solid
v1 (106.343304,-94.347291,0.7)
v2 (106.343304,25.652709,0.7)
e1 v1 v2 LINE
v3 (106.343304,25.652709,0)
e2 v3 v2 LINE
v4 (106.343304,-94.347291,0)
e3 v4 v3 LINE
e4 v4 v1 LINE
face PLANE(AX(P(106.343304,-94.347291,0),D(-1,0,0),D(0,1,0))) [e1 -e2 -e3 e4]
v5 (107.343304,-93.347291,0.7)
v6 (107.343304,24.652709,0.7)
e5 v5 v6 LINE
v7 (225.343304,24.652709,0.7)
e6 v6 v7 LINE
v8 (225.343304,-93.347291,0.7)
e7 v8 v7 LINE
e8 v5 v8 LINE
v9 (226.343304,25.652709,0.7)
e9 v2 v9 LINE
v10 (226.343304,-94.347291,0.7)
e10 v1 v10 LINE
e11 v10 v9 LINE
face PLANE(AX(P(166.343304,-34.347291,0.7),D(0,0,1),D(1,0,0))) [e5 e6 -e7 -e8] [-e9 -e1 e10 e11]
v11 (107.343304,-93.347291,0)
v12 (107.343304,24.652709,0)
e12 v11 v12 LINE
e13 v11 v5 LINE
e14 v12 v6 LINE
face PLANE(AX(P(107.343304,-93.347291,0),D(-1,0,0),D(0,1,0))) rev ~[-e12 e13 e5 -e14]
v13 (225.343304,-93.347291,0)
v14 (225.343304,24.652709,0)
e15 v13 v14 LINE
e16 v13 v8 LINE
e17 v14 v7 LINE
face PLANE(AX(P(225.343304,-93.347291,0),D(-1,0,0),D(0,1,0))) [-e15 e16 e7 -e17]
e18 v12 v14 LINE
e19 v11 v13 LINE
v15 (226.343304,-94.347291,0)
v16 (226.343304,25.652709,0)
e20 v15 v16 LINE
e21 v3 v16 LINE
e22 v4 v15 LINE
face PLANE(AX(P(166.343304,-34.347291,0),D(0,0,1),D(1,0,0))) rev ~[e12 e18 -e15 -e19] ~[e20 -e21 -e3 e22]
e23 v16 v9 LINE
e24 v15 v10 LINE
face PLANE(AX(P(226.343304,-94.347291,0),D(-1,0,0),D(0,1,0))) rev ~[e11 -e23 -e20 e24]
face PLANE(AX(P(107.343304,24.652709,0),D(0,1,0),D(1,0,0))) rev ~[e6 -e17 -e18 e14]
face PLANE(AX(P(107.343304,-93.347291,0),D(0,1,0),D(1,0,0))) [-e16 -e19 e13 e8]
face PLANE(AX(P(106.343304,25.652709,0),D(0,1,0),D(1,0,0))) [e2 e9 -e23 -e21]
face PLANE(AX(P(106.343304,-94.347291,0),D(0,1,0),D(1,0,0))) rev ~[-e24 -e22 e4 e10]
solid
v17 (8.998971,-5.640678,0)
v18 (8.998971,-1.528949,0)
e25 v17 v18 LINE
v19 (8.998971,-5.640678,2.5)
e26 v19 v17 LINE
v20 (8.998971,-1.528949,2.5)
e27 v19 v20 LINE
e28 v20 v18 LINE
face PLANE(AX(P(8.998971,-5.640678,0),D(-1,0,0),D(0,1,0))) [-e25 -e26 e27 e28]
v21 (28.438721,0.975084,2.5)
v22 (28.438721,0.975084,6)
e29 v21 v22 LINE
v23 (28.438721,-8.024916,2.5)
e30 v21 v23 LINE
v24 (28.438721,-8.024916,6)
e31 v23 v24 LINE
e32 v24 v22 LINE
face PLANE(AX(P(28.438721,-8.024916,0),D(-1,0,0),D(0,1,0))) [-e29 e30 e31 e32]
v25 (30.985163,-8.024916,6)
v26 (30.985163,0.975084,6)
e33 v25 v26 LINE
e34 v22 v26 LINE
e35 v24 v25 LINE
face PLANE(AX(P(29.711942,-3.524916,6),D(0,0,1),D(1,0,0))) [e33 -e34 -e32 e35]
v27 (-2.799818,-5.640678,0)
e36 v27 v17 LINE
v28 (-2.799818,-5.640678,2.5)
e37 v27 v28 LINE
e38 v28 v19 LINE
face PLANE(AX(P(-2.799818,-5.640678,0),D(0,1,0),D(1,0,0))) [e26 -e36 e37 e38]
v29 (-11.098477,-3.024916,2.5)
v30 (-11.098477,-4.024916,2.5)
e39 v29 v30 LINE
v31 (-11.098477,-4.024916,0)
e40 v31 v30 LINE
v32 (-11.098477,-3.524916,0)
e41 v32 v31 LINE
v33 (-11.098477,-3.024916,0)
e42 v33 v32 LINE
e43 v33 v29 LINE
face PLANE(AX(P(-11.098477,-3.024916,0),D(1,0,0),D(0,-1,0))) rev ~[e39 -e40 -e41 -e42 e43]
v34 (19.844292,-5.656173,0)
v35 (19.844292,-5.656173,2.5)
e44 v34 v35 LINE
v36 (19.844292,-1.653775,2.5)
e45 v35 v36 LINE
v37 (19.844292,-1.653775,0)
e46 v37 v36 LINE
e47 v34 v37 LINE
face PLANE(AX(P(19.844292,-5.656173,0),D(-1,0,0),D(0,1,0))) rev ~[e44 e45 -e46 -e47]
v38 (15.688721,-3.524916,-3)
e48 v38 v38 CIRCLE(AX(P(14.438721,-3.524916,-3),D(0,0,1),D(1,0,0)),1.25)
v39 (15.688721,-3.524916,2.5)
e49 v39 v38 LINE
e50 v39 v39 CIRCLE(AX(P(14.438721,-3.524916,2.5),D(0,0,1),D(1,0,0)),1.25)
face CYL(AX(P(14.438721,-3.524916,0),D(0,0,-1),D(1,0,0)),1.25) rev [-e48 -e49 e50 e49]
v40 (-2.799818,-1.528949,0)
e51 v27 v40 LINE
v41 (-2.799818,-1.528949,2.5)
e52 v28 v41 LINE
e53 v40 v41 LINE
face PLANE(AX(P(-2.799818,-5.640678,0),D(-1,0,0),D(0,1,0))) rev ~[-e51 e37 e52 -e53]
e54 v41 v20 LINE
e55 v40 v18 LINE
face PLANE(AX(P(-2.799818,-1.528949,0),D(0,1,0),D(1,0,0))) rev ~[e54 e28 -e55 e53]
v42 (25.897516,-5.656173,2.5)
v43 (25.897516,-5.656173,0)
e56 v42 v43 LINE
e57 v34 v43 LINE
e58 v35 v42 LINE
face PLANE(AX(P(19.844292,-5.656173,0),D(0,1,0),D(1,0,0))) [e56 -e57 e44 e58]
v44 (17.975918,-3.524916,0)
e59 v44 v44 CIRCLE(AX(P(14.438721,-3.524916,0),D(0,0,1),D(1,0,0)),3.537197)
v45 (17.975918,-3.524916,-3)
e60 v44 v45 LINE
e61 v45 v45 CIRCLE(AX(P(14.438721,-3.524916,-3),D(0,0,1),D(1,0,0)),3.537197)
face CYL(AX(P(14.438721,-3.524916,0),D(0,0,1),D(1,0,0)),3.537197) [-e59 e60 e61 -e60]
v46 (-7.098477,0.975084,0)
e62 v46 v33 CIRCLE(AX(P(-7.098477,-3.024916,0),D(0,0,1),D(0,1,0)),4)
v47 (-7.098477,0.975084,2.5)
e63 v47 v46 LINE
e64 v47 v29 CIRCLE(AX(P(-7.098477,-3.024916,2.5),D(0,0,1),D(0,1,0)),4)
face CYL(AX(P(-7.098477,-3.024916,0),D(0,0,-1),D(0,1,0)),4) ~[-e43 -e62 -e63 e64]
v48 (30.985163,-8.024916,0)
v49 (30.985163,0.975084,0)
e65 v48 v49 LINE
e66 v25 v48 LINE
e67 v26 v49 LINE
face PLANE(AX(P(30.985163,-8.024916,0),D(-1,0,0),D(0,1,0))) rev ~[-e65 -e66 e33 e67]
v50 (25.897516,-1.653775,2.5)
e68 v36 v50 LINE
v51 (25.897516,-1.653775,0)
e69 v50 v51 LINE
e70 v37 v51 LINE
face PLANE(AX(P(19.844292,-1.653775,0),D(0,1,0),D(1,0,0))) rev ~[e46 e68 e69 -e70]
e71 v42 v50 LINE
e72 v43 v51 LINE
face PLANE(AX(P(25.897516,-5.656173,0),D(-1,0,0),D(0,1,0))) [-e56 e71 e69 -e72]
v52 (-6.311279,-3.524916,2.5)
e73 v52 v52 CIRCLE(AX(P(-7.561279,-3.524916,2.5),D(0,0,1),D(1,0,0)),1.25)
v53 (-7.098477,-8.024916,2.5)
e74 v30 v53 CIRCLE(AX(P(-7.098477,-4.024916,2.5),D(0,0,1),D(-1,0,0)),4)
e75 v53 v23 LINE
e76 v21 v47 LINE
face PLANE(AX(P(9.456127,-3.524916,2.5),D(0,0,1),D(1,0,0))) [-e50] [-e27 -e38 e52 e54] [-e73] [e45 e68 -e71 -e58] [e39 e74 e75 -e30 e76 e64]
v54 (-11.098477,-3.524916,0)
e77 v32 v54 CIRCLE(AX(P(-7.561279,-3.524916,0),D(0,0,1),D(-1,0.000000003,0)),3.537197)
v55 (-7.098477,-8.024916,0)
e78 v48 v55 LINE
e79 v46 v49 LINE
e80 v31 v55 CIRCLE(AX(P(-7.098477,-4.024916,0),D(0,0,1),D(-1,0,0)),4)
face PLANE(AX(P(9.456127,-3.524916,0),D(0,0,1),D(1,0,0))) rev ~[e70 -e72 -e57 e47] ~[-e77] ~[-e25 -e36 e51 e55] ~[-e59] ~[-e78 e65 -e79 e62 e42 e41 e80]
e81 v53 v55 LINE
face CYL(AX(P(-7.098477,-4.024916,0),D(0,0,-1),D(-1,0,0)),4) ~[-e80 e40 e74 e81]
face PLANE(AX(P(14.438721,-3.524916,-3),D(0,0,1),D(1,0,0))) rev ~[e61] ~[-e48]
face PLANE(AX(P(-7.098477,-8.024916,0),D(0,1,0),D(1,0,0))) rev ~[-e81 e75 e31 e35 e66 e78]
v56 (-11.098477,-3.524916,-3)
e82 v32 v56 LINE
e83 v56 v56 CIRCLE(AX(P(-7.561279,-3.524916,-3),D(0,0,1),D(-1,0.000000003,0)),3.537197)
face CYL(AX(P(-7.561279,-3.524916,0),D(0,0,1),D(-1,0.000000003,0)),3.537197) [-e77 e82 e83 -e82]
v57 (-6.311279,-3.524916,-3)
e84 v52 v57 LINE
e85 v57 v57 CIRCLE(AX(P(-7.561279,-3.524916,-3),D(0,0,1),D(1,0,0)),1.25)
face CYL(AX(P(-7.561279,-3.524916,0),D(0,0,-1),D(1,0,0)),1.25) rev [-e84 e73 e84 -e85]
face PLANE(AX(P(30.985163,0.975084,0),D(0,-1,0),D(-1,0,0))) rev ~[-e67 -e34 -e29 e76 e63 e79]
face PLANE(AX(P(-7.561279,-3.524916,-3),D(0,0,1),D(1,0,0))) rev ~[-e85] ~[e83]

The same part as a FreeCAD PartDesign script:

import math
import FreeCAD as App
import Part
import Sketcher
from FreeCAD import Vector

doc = App.newDocument("Part")
body = doc.addObject("PartDesign::Body", "Body")

# Sketch on XY plane
sketch1 = doc.addObject("Sketcher::SketchObject", "Sketch")
body.addObject(sketch1)
sketch1.AttachmentSupport = (doc.XY_Plane, [""])
sketch1.MapMode = "FlatFace"
sketch1.addGeometry([
    Part.LineSegment(Vector(-11.1, -3, 0), Vector(-11.1, -4, 0)),  # 0
    Part.ArcOfCircle(Part.Circle(Vector(-7.1, -4, 0), Vector(0, 0, 1), 4), math.radians(180), math.radians(270)),  # 1
    Part.LineSegment(Vector(-7.1, -8, 0), Vector(31, -8, 0)),  # 2
    Part.LineSegment(Vector(31, -8, 0), Vector(31, 1, 0)),  # 3
    Part.LineSegment(Vector(31, 1, 0), Vector(-7.1, 1, 0)),  # 4
    Part.ArcOfCircle(Part.Circle(Vector(-7.1, -3, 0), Vector(0, 0, 1), 4), math.radians(90), math.radians(180)),  # 5
    Part.LineSegment(Vector(25.9, -5.7, 0), Vector(19.8, -5.7, 0)),  # 6
    Part.LineSegment(Vector(19.8, -5.7, 0), Vector(19.8, -1.7, 0)),  # 7
    Part.LineSegment(Vector(19.8, -1.7, 0), Vector(25.9, -1.7, 0)),  # 8
    Part.LineSegment(Vector(25.9, -1.7, 0), Vector(25.9, -5.7, 0)),  # 9
    Part.Circle(Vector(-7.6, -3.5, 0), Vector(0, 0, 1), 1.2),  # 10
    Part.LineSegment(Vector(9, -5.6, 0), Vector(-2.8, -5.6, 0)),  # 11
    Part.LineSegment(Vector(-2.8, -5.6, 0), Vector(-2.8, -1.5, 0)),  # 12
    Part.LineSegment(Vector(-2.8, -1.5, 0), Vector(9, -1.5, 0)),  # 13
    Part.LineSegment(Vector(9, -1.5, 0), Vector(9, -5.6, 0)),  # 14
    Part.Circle(Vector(14.4, -3.5, 0), Vector(0, 0, 1), 1.2),  # 15
], False)
sketch1.addConstraint([
    Sketcher.Constraint("Tangent", 0, 2, 1, 1),
    Sketcher.Constraint("Tangent", 1, 2, 2, 1),
    Sketcher.Constraint("Coincident", 2, 2, 3, 1),
    Sketcher.Constraint("Coincident", 3, 2, 4, 1),
    Sketcher.Constraint("Tangent", 4, 2, 5, 1),
    Sketcher.Constraint("Tangent", 5, 2, 0, 1),
    Sketcher.Constraint("Coincident", 6, 2, 7, 1),
    Sketcher.Constraint("Coincident", 7, 2, 8, 1),
    Sketcher.Constraint("Coincident", 8, 2, 9, 1),
    Sketcher.Constraint("Coincident", 9, 2, 6, 1),
    Sketcher.Constraint("Coincident", 11, 2, 12, 1),
    Sketcher.Constraint("Coincident", 12, 2, 13, 1),
    Sketcher.Constraint("Coincident", 13, 2, 14, 1),
    Sketcher.Constraint("Coincident", 14, 2, 11, 1),
    Sketcher.Constraint("Vertical", 0),
    Sketcher.Constraint("Horizontal", 2),
    Sketcher.Constraint("Vertical", 3),
    Sketcher.Constraint("Horizontal", 4),
    Sketcher.Constraint("Horizontal", 6),
    Sketcher.Constraint("Vertical", 7),
    Sketcher.Constraint("Horizontal", 8),
    Sketcher.Constraint("Vertical", 9),
    Sketcher.Constraint("Horizontal", 11),
    Sketcher.Constraint("Vertical", 12),
    Sketcher.Constraint("Horizontal", 13),
    Sketcher.Constraint("Vertical", 14),
    Sketcher.Constraint("Equal", 1, 5),
    Sketcher.Constraint("Equal", 10, 15),
    Sketcher.Constraint("Horizontal", 10, 3, 15, 3),
    Sketcher.Constraint("Radius", 1, 4.0),
    Sketcher.Constraint("Diameter", 10, 2.5),
    Sketcher.Constraint("DistanceY", 0, 2, 0, 1, 1.0),
    Sketcher.Constraint("DistanceX", 10, 3, 15, 3, 22.0),
    Sketcher.Constraint("DistanceY", 1, 3, 10, 3, 0.5),
    Sketcher.Constraint("DistanceX", 2, 1, 2, 2, 38.083639),
    Sketcher.Constraint("DistanceX", 11, 2, 11, 1, 11.798789),
    Sketcher.Constraint("DistanceY", 12, 1, 12, 2, 4.111729),
    Sketcher.Constraint("DistanceX", 6, 2, 6, 1, 6.053224),
    Sketcher.Constraint("DistanceY", 7, 1, 7, 2, 4.002397),
    Sketcher.Constraint("DistanceX", 10, 3, -1, 1, 7.561279),
    Sketcher.Constraint("DistanceX", -1, 1, 6, 2, 19.844292),
    Sketcher.Constraint("DistanceX", 11, 2, -1, 1, 2.799818),
    Sketcher.Constraint("DistanceY", 12, 2, -1, 1, 1.528949),
    Sketcher.Constraint("DistanceX", 15, 3, 2, 2, 16.546442),
    Sketcher.Constraint("DistanceY", 15, 3, 7, 2, 1.871141),
    Sketcher.Constraint("DistanceY", 11, 2, 1, 3, 1.615762),
])
pad1 = doc.addObject("PartDesign::Pad", "Pad")
body.addObject(pad1)
pad1.Profile = sketch1
pad1.Length = 2.5

# Sketch on XY plane
sketch2 = doc.addObject("Sketcher::SketchObject", "Sketch001")
body.addObject(sketch2)
sketch2.AttachmentSupport = (doc.XY_Plane, [""])
sketch2.MapMode = "FlatFace"
sketch2.addGeometry([
    Part.Circle(Vector(-7.6, -3.5, 0), Vector(0, 0, 1), 3.5),
    Part.Circle(Vector(-7.6, -3.5, 0), Vector(0, 0, 1), 1.2),
    Part.Circle(Vector(14.4, -3.5, 0), Vector(0, 0, 1), 3.5),
    Part.Circle(Vector(14.4, -3.5, 0), Vector(0, 0, 1), 1.2),
], False)
sketch2.addConstraint([
    Sketcher.Constraint("Coincident", 1, 3, 0, 3),
    Sketcher.Constraint("Coincident", 3, 3, 2, 3),
    Sketcher.Constraint("Equal", 0, 2),
    Sketcher.Constraint("Equal", 1, 3),
    Sketcher.Constraint("Horizontal", 1, 3, 2, 3),
    Sketcher.Constraint("Diameter", 1, 2.5),
    Sketcher.Constraint("DistanceX", 0, 3, 2, 3, 22.0),
    Sketcher.Constraint("Diameter", 0, 7.074395),
    Sketcher.Constraint("DistanceX", 0, 3, -1, 1, 7.561279),
    Sketcher.Constraint("DistanceY", 0, 3, -1, 1, 3.524916),
])
pad2 = doc.addObject("PartDesign::Pad", "Pad001")
body.addObject(pad2)
pad2.Profile = sketch2
pad2.Length = 3
pad2.Reversed = True

# Sketch on XY plane
sketch3 = doc.addObject("Sketcher::SketchObject", "Sketch002")
body.addObject(sketch3)
sketch3.AttachmentSupport = (doc.XY_Plane, [""])
sketch3.MapMode = "FlatFace"
sketch3.addGeometry([
    Part.LineSegment(Vector(28.4, 1, 0), Vector(28.4, -8, 0)),
    Part.LineSegment(Vector(28.4, -8, 0), Vector(31, -8, 0)),
    Part.LineSegment(Vector(31, -8, 0), Vector(31, 1, 0)),
    Part.LineSegment(Vector(31, 1, 0), Vector(28.4, 1, 0)),
], False)
sketch3.addConstraint([
    Sketcher.Constraint("Coincident", 0, 2, 1, 1),
    Sketcher.Constraint("Coincident", 1, 2, 2, 1),
    Sketcher.Constraint("Coincident", 2, 2, 3, 1),
    Sketcher.Constraint("Coincident", 3, 2, 0, 1),
    Sketcher.Constraint("Vertical", 0),
    Sketcher.Constraint("Horizontal", 1),
    Sketcher.Constraint("Vertical", 2),
    Sketcher.Constraint("Horizontal", 3),
    Sketcher.Constraint("DistanceY", 0, 2, 0, 1, 9.0),
    Sketcher.Constraint("DistanceX", 1, 1, 1, 2, 2.546442),
    Sketcher.Constraint("DistanceX", -1, 1, 0, 2, 28.438721),
    Sketcher.Constraint("DistanceY", 0, 2, -1, 1, 8.024916),
])
pad3 = doc.addObject("PartDesign::Pad", "Pad002")
body.addObject(pad3)
pad3.Profile = sketch3
pad3.Length = 6

# Sketch on XY plane
sketch4 = doc.addObject("Sketcher::SketchObject", "Sketch003")
body.addObject(sketch4)
sketch4.AttachmentSupport = (doc.XY_Plane, [""])
sketch4.MapMode = "FlatFace"
sketch4.addGeometry([
    Part.ArcOfCircle(Part.Circle(Vector(-7.1, -3, 0), Vector(0, 0, 1), 4), math.radians(90), math.radians(180)),  # 0
    Part.LineSegment(Vector(-11.1, -3, 0), Vector(-11.1, -4, 0)),  # 1
    Part.ArcOfCircle(Part.Circle(Vector(-7.1, -4, 0), Vector(0, 0, 1), 4), math.radians(180), math.radians(270)),  # 2
    Part.LineSegment(Vector(-7.1, -8, 0), Vector(31, -8, 0)),  # 3
    Part.LineSegment(Vector(31, -8, 0), Vector(31, 1, 0)),  # 4
    Part.LineSegment(Vector(31, 1, 0), Vector(-7.1, 1, 0)),  # 5
    Part.LineSegment(Vector(9, -5.6, 0), Vector(-2.8, -5.6, 0)),  # 6
    Part.LineSegment(Vector(-2.8, -5.6, 0), Vector(-2.8, -1.5, 0)),  # 7
    Part.LineSegment(Vector(-2.8, -1.5, 0), Vector(9, -1.5, 0)),  # 8
    Part.LineSegment(Vector(9, -1.5, 0), Vector(9, -5.6, 0)),  # 9
    Part.LineSegment(Vector(25.9, -5.7, 0), Vector(19.8, -5.7, 0)),  # 10
    Part.LineSegment(Vector(19.8, -5.7, 0), Vector(19.8, -1.7, 0)),  # 11
    Part.LineSegment(Vector(19.8, -1.7, 0), Vector(25.9, -1.7, 0)),  # 12
    Part.LineSegment(Vector(25.9, -1.7, 0), Vector(25.9, -5.7, 0)),  # 13
    Part.Circle(Vector(-7.6, -3.5, 0), Vector(0, 0, 1), 1.2),  # 14
    Part.Circle(Vector(14.4, -3.5, 0), Vector(0, 0, 1), 3.5),  # 15
], False)
sketch4.addConstraint([
    Sketcher.Constraint("Tangent", 0, 2, 1, 1),
    Sketcher.Constraint("Tangent", 1, 2, 2, 1),
    Sketcher.Constraint("Tangent", 2, 2, 3, 1),
    Sketcher.Constraint("Coincident", 3, 2, 4, 1),
    Sketcher.Constraint("Coincident", 4, 2, 5, 1),
    Sketcher.Constraint("Tangent", 5, 2, 0, 1),
    Sketcher.Constraint("Coincident", 6, 2, 7, 1),
    Sketcher.Constraint("Coincident", 7, 2, 8, 1),
    Sketcher.Constraint("Coincident", 8, 2, 9, 1),
    Sketcher.Constraint("Coincident", 9, 2, 6, 1),
    Sketcher.Constraint("Coincident", 10, 2, 11, 1),
    Sketcher.Constraint("Coincident", 11, 2, 12, 1),
    Sketcher.Constraint("Coincident", 12, 2, 13, 1),
    Sketcher.Constraint("Coincident", 13, 2, 10, 1),
    Sketcher.Constraint("Vertical", 1),
    Sketcher.Constraint("Horizontal", 3),
    Sketcher.Constraint("Vertical", 4),
    Sketcher.Constraint("Horizontal", 5),
    Sketcher.Constraint("Horizontal", 6),
    Sketcher.Constraint("Vertical", 7),
    Sketcher.Constraint("Horizontal", 8),
    Sketcher.Constraint("Vertical", 9),
    Sketcher.Constraint("Horizontal", 10),
    Sketcher.Constraint("Vertical", 11),
    Sketcher.Constraint("Horizontal", 12),
    Sketcher.Constraint("Vertical", 13),
    Sketcher.Constraint("Equal", 0, 2),
    Sketcher.Constraint("Horizontal", 14, 3, 15, 3),
    Sketcher.Constraint("Radius", 0, 4.0),
    Sketcher.Constraint("Diameter", 14, 2.5),
    Sketcher.Constraint("DistanceY", 1, 2, 1, 1, 1.0),
    Sketcher.Constraint("DistanceX", 14, 3, 15, 3, 22.0),
    Sketcher.Constraint("DistanceY", 14, 3, 0, 3, 0.5),
    Sketcher.Constraint("Diameter", 15, 7.074395),
    Sketcher.Constraint("DistanceX", 3, 1, 3, 2, 38.083639),
    Sketcher.Constraint("DistanceX", 6, 2, 6, 1, 11.798789),
    Sketcher.Constraint("DistanceY", 7, 1, 7, 2, 4.111729),
    Sketcher.Constraint("DistanceX", 10, 2, 10, 1, 6.053224),
    Sketcher.Constraint("DistanceY", 11, 1, 11, 2, 4.002397),
    Sketcher.Constraint("DistanceX", 14, 3, -1, 1, 7.561279),
    Sketcher.Constraint("DistanceX", 6, 2, -1, 1, 2.799818),
    Sketcher.Constraint("DistanceY", 7, 2, -1, 1, 1.528949),
    Sketcher.Constraint("DistanceX", -1, 1, 10, 2, 19.844292),
    Sketcher.Constraint("DistanceX", 15, 3, 3, 2, 16.546442),
    Sketcher.Constraint("DistanceY", 6, 2, 2, 3, 1.615762),
    Sketcher.Constraint("DistanceY", 15, 3, 11, 2, 1.871141),
])
pad4 = doc.addObject("PartDesign::Pad", "Pad003")
body.addObject(pad4)
pad4.Profile = sketch4
pad4.Length = 0.7
body2 = doc.addObject("PartDesign::Body", "Body001")

# Sketch on XY plane
sketch5 = doc.addObject("Sketcher::SketchObject", "Sketch004")
body2.addObject(sketch5)
sketch5.AttachmentSupport = (doc.getObject("XY_Plane001"), [""])
sketch5.MapMode = "FlatFace"
sketch5.addGeometry([
    Part.LineSegment(Vector(106, 26, 0), Vector(106, -94, 0)),  # 0
    Part.LineSegment(Vector(106, -94, 0), Vector(226, -94, 0)),  # 1
    Part.LineSegment(Vector(226, -94, 0), Vector(226, 26, 0)),  # 2
    Part.LineSegment(Vector(226, 26, 0), Vector(106, 26, 0)),  # 3
    Part.LineSegment(Vector(225, -93, 0), Vector(107, -93, 0)),  # 4
    Part.LineSegment(Vector(107, -93, 0), Vector(107, 25, 0)),  # 5
    Part.LineSegment(Vector(107, 25, 0), Vector(225, 25, 0)),  # 6
    Part.LineSegment(Vector(225, 25, 0), Vector(225, -93, 0)),  # 7
], False)
sketch5.addConstraint([
    Sketcher.Constraint("Coincident", 0, 2, 1, 1),
    Sketcher.Constraint("Coincident", 1, 2, 2, 1),
    Sketcher.Constraint("Coincident", 2, 2, 3, 1),
    Sketcher.Constraint("Coincident", 3, 2, 0, 1),
    Sketcher.Constraint("Coincident", 4, 2, 5, 1),
    Sketcher.Constraint("Coincident", 5, 2, 6, 1),
    Sketcher.Constraint("Coincident", 6, 2, 7, 1),
    Sketcher.Constraint("Coincident", 7, 2, 4, 1),
    Sketcher.Constraint("Vertical", 0),
    Sketcher.Constraint("Horizontal", 1),
    Sketcher.Constraint("Vertical", 2),
    Sketcher.Constraint("Horizontal", 3),
    Sketcher.Constraint("Horizontal", 4),
    Sketcher.Constraint("Vertical", 5),
    Sketcher.Constraint("Horizontal", 6),
    Sketcher.Constraint("Vertical", 7),
    Sketcher.Constraint("Equal", 3, 0),
    Sketcher.Constraint("Equal", 6, 5),
    Sketcher.Constraint("DistanceX", 1, 1, 1, 2, 120.0),
    Sketcher.Constraint("DistanceX", 4, 2, 4, 1, 118.0),
    Sketcher.Constraint("DistanceX", 0, 2, 4, 2, 1.0),
    Sketcher.Constraint("DistanceY", 0, 2, 4, 2, 1.0),
    Sketcher.Constraint("DistanceY", 0, 2, -1, 1, 94.347291),
    Sketcher.Constraint("DistanceX", -1, 1, 0, 2, 106.343304),
])
pad5 = doc.addObject("PartDesign::Pad", "Pad004")
body2.addObject(pad5)
pad5.Profile = sketch5
pad5.Length = 0.7

doc.recompute()
